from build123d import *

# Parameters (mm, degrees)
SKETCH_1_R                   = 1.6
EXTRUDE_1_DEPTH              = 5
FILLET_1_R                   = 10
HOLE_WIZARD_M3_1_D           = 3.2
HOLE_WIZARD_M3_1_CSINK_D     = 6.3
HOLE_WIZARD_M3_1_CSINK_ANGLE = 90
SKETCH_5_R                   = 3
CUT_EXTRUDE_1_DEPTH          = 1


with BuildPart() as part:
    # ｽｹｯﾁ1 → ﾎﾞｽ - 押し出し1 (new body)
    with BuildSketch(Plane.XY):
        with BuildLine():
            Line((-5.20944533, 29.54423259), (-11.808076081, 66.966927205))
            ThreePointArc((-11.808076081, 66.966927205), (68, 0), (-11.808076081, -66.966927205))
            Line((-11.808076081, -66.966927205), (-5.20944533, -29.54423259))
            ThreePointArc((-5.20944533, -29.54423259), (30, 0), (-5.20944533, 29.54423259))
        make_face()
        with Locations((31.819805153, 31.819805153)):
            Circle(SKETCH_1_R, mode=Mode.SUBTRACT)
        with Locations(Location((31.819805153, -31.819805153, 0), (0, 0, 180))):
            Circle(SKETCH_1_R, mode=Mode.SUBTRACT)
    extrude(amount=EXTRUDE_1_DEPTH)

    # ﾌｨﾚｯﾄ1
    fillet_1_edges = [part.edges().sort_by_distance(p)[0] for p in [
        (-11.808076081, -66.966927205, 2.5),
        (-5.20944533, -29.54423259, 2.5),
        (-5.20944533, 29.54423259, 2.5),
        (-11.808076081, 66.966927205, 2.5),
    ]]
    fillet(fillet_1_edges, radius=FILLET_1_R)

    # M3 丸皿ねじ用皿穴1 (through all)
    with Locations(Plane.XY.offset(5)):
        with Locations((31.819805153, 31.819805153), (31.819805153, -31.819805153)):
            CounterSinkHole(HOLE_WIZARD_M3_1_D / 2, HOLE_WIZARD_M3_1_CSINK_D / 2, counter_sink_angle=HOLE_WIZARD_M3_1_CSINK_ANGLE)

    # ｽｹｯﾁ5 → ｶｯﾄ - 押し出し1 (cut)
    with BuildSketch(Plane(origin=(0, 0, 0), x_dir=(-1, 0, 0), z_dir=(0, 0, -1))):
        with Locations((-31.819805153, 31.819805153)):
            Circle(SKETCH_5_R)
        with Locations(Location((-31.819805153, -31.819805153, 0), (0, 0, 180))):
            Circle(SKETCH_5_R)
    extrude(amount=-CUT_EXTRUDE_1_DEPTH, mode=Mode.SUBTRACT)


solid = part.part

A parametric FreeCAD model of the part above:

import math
import FreeCAD as App
import Part
import Sketcher
from FreeCAD import Vector
Q = App.Units.Quantity


def edges_at(feature, points):
    """Names of the edges that pass closest to the given points."""
    edges = feature.Shape.Edges
    near = lambda p: min(range(len(edges)), key=lambda i: edges[i].distToShape(Part.Vertex(*p))[0])
    return sorted({f"Edge{near(p) + 1}" for p in points})

doc = App.newDocument("Part")
body = doc.addObject("PartDesign::Body", "Body")

# Sketch on XY plane
sketch1 = doc.addObject("Sketcher::SketchObject", "Sketch")
body.addObject(sketch1)
sketch1.AttachmentSupport = (doc.XY_Plane, [""])
sketch1.MapMode = "FlatFace"
sketch1.addGeometry([
    Part.LineSegment(Vector(-11.808076, 66.966927, 0), Vector(-5.209445, 29.544233, 0)),  # 0
    Part.ArcOfCircle(Part.Circle(Vector(0, 0, 0), Vector(0, 0, 1), 30), math.radians(-100), math.radians(100)),  # 1
    Part.LineSegment(Vector(-5.209445, -29.544233, 0), Vector(-11.808076, -66.966927, 0)),  # 2
    Part.ArcOfCircle(Part.Circle(Vector(0, 0, 0), Vector(0, 0, 1), 68), math.radians(-100), math.radians(100)),  # 3
    Part.Circle(Vector(31.819805, -31.819805, 0), Vector(0, 0, 1), 1.6),  # 4
    Part.Circle(Vector(31.819805, 31.819805, 0), Vector(0, 0, 1), 1.6),  # 5
], False)
sketch1.addConstraint([
    Sketcher.Constraint("Coincident", 0, 2, 1, 2),
    Sketcher.Constraint("Coincident", 1, 1, 2, 1),
    Sketcher.Constraint("Coincident", 2, 2, 3, 1),
    Sketcher.Constraint("Coincident", 3, 2, 0, 1),
    Sketcher.Constraint("Coincident", 1, 3, -1, 1),
    Sketcher.Constraint("Coincident", 3, 3, -1, 1),
    Sketcher.Constraint("Equal", 4, 5),
    Sketcher.Constraint("Symmetric", 4, 3, 5, 3, -1),
    Sketcher.Constraint("Vertical", 0, 2, 1, 1),
    Sketcher.Constraint("Vertical", 2, 2, 3, 2),
    Sketcher.Constraint("Radius", 1, 30.0),
    Sketcher.Constraint("Radius", 3, 68.0),
    Sketcher.Constraint("Diameter", 4, 3.2),
    Sketcher.Constraint("Angle", 0, Q("-80 deg")),
    Sketcher.Constraint("DistanceY", 4, 3, 5, 3, 63.63961),
    Sketcher.Constraint("DistanceX", 0, 2, 5, 3, 37.02925),
    Sketcher.Constraint("DistanceY", 2, 2, 0, 2, 96.51116),
])
pad1 = doc.addObject("PartDesign::Pad", "Pad")
body.addObject(pad1)
pad1.Profile = sketch1
pad1.Length = 5
doc.recompute()

fillet = doc.addObject("PartDesign::Fillet", "Fillet")
body.addObject(fillet)
fillet.Base = (pad1, edges_at(pad1, [
    (-11.808, -66.967, 2.5),
    (-5.209, -29.544, 2.5),
    (-5.209, 29.544, 2.5),
    (-11.808, 66.967, 2.5),
]))
fillet.Radius = 10

# Sketch on XY plane
sketch2 = doc.addObject("Sketcher::SketchObject", "Sketch001")
body.addObject(sketch2)
sketch2.AttachmentSupport = (doc.XY_Plane, [""])
sketch2.MapMode = "FlatFace"
sketch2.AttachmentOffset = App.Placement(Vector(0, 0, 5), App.Rotation())
sketch2.addGeometry([
    Part.Circle(Vector(31.819805, 31.819805, 0), Vector(0, 0, 1), 1.6),
    Part.Circle(Vector(31.819805, -31.819805, 0), Vector(0, 0, 1), 1.6),
], False)
sketch2.addConstraint([
    Sketcher.Constraint("Equal", 0, 1),
    Sketcher.Constraint("Symmetric", 0, 3, 1, 3, -1),
    Sketcher.Constraint("Diameter", 0, 3.2),
    Sketcher.Constraint("DistanceY", 1, 3, 0, 3, 63.63961),
    Sketcher.Constraint("DistanceX", -1, 1, 0, 3, 31.819805),
])
doc.recompute()
hole = doc.addObject("PartDesign::Hole", "Hole")
body.addObject(hole)
hole.Profile = sketch2
hole.ThreadType = "None"
hole.Diameter = 3.2
hole.DepthType = "ThroughAll"
hole.HoleCutType = "Countersink"
hole.HoleCutDiameter = 6.3
hole.HoleCutCountersinkAngle = 90

# Sketch on XY plane
sketch3 = doc.addObject("Sketcher::SketchObject", "Sketch002")
body.addObject(sketch3)
sketch3.AttachmentSupport = (doc.XY_Plane, [""])
sketch3.MapMode = "FlatFace"
sketch3.addGeometry([
    Part.Circle(Vector(31.819805, 31.819805, 0), Vector(0, 0, 1), 3),
    Part.Circle(Vector(31.819805, -31.819805, 0), Vector(0, 0, 1), 3),
], False)
sketch3.addConstraint([
    Sketcher.Constraint("Equal", 0, 1),
    Sketcher.Constraint("Symmetric", 0, 3, 1, 3, -1),
    Sketcher.Constraint("Diameter", 0, 6.0),
    Sketcher.Constraint("DistanceY", 1, 3, 0, 3, 63.63961),
    Sketcher.Constraint("DistanceX", -1, 1, 0, 3, 31.819805),
])
pocket1 = doc.addObject("PartDesign::Pocket", "Pocket")
body.addObject(pocket1)
pocket1.Profile = sketch3
pocket1.Length = 1
pocket1.Reversed = True

doc.recompute()
